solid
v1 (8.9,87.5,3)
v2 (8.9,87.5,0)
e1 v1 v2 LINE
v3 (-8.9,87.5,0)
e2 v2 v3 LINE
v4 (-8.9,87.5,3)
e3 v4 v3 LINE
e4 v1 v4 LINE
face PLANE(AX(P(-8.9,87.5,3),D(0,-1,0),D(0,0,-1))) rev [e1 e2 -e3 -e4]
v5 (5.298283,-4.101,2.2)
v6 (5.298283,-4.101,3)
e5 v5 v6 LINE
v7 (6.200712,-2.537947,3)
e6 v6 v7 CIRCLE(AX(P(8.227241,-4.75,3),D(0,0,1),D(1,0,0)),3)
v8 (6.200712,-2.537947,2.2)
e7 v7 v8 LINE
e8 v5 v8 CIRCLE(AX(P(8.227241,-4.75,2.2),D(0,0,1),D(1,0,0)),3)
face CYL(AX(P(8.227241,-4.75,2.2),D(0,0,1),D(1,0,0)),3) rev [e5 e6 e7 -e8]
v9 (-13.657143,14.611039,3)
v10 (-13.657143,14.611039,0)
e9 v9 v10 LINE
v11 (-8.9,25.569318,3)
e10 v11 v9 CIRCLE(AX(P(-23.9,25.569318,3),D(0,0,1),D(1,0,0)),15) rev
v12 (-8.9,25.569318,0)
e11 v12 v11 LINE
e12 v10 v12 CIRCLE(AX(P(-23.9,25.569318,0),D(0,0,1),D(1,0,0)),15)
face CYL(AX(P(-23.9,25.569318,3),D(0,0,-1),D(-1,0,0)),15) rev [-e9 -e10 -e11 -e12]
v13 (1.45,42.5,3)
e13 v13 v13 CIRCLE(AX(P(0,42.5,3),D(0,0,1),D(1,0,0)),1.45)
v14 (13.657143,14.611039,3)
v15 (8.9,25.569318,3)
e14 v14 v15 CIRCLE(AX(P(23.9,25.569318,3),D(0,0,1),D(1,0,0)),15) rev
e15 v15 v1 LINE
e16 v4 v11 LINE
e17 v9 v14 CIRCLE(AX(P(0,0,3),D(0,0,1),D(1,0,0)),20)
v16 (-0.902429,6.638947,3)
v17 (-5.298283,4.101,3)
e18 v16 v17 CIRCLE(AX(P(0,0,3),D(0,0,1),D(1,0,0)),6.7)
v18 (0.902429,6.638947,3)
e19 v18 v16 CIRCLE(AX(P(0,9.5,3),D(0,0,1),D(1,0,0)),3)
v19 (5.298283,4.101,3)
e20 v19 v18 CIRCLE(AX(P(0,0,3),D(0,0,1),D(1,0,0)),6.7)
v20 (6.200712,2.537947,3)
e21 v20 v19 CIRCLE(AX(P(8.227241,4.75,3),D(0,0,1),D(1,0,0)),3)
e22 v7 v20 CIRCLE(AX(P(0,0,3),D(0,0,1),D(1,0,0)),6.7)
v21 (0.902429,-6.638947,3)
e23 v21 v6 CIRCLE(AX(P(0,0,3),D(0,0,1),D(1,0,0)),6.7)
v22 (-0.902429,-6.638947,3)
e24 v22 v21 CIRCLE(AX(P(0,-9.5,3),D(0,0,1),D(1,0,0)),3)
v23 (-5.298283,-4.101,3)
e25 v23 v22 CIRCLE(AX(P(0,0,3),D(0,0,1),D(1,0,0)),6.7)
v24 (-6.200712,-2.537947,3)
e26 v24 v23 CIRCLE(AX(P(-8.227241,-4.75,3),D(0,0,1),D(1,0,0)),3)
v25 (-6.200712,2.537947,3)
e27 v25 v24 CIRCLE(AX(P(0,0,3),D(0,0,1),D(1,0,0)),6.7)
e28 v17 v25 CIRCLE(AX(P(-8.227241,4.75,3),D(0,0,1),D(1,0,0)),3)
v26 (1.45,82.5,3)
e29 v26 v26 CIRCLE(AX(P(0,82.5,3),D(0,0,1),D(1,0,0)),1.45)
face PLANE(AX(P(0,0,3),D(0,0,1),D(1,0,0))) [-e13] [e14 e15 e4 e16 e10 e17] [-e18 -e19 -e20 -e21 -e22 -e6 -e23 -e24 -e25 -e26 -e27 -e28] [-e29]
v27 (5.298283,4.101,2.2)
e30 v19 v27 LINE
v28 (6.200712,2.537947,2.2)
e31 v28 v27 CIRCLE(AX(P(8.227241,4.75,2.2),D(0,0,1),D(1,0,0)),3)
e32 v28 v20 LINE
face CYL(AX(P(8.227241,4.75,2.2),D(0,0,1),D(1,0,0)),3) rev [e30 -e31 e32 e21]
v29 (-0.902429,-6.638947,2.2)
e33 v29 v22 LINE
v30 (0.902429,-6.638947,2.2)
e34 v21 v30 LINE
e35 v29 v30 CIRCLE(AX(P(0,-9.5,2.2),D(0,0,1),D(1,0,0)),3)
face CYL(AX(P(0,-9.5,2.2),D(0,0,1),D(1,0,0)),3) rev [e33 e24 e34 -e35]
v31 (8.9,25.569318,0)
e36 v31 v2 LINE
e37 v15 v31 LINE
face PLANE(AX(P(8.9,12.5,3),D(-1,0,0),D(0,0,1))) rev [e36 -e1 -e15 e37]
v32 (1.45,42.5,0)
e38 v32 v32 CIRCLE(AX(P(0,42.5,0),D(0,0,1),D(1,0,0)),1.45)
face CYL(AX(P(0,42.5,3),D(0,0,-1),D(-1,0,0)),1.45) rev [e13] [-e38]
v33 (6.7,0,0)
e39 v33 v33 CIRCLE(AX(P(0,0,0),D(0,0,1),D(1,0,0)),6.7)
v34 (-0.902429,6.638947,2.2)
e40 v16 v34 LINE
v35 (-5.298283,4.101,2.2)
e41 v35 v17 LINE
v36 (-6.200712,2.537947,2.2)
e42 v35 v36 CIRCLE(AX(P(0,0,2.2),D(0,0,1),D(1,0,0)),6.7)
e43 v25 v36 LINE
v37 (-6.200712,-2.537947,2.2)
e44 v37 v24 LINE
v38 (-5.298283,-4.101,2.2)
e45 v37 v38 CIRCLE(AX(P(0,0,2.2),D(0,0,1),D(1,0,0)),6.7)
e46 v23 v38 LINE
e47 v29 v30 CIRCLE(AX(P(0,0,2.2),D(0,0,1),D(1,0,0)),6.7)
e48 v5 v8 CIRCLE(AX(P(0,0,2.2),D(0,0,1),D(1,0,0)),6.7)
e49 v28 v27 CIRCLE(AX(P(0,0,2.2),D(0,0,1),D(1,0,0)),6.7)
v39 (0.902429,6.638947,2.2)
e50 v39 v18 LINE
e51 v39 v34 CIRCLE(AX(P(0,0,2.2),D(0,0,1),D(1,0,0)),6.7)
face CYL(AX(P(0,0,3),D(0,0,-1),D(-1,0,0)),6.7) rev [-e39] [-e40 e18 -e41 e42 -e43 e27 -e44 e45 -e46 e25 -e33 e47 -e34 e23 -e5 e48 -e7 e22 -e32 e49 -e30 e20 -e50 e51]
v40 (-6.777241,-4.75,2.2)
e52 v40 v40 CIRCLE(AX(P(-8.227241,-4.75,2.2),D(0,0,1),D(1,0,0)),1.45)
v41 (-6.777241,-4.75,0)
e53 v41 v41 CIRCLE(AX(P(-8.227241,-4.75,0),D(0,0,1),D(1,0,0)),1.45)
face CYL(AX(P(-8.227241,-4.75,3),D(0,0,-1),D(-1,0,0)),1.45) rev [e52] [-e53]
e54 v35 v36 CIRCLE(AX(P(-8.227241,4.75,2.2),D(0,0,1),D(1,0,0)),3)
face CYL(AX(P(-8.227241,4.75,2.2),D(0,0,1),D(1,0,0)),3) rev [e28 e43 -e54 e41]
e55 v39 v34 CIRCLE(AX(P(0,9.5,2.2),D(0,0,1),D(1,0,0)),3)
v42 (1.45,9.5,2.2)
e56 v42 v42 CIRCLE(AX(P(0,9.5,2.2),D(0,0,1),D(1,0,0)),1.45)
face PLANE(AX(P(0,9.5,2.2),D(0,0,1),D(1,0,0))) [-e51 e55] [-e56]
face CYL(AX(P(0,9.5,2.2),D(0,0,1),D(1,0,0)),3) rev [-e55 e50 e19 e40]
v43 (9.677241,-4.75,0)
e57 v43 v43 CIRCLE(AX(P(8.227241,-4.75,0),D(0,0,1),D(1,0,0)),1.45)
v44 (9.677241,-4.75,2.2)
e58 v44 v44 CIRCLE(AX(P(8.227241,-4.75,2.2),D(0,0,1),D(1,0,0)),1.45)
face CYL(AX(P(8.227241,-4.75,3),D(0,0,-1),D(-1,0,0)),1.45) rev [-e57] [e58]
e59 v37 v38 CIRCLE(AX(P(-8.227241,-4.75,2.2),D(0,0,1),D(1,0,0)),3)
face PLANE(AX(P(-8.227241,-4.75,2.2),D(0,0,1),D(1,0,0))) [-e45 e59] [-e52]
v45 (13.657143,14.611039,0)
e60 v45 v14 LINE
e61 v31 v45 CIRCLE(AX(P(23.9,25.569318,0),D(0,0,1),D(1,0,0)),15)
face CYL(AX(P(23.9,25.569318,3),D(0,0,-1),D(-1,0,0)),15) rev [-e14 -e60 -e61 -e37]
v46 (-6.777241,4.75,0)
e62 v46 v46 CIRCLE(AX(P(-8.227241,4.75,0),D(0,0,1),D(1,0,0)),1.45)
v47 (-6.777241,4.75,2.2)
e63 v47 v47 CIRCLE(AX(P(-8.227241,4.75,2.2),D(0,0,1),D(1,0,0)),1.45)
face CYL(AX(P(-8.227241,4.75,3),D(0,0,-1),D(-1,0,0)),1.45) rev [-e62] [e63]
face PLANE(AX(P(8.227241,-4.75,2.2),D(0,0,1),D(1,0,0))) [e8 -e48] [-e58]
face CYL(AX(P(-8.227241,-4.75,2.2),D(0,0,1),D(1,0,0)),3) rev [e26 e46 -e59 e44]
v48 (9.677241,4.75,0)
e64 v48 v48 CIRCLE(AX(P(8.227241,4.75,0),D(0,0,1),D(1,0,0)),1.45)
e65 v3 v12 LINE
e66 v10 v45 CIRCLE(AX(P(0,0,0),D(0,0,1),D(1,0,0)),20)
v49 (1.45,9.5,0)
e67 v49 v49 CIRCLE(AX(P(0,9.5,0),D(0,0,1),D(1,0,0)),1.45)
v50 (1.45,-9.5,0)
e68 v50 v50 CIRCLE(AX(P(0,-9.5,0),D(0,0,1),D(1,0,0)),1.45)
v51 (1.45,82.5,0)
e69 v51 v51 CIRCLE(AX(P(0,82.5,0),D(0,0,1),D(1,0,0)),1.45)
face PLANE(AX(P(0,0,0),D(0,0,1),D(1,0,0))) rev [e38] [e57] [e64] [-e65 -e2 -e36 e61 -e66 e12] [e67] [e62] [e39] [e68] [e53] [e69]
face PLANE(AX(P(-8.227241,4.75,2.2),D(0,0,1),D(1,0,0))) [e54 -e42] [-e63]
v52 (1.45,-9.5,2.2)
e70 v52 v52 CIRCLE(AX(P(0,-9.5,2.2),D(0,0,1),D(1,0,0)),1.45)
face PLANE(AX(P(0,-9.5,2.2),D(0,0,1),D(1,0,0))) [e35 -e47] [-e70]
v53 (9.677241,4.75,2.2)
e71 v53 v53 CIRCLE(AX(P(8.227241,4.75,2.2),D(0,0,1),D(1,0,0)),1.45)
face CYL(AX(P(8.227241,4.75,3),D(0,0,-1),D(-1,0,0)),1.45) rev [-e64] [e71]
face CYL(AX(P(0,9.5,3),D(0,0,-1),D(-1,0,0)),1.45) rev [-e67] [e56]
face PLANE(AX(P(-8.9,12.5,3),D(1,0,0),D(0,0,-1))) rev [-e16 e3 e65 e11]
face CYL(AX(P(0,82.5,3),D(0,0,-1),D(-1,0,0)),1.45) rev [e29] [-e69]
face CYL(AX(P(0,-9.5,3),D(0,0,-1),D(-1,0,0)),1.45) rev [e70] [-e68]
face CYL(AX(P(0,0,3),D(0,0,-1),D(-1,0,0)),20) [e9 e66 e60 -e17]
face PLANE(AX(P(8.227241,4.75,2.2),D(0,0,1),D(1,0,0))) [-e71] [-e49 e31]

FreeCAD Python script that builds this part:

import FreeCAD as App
import Part
import Sketcher
from FreeCAD import Vector


def edges_at(feature, points):
    """Names of the edges that pass closest to the given points."""
    edges = feature.Shape.Edges
    near = lambda p: min(range(len(edges)), key=lambda i: edges[i].distToShape(Part.Vertex(*p))[0])
    return sorted({f"Edge{near(p) + 1}" for p in points})

doc = App.newDocument("Part")
params = doc.addObject("Spreadsheet::Sheet", "Params")
for row, (alias, value) in enumerate([
    ("sketch1_diameter", "40 mm"),
    ("sketch1_diameter2", "2.9 mm"),
    ("sketch1_diameter3", "13.4 mm"),
    ("pad1_length", "3 mm"),
    ("sketch2_diameter", "2.9 mm"),
    ("sketch2_height", "75 mm"),
    ("sketch2_width", "17.8 mm"),
    ("pad2_length", "3 mm"),
    ("fillet_radius", "15 mm"),
    ("sketch3_diameter", "6 mm"),
    ("pocket1_length", "0.8 mm"),
], start=1):
    params.set(f"A{row}", alias)
    params.set(f"B{row}", "=" + value)
    params.setAlias(f"B{row}", alias)

body = doc.addObject("PartDesign::Body", "Body")

sketch1 = body.newObject("Sketcher::SketchObject", "Sketch")
sketch1.AttachmentSupport = (doc.getObject("XY_Plane"), [""])
sketch1.MapMode = "FlatFace"
sketch1.addGeometry([
    Part.Circle(Vector(0, 0, 0), Vector(0, 0, 1), 20),
    Part.Circle(Vector(-8.2, -4.8, 0), Vector(0, 0, 1), 1.4),
    Part.Circle(Vector(0, -9.5, 0), Vector(0, 0, 1), 1.4),
    Part.Circle(Vector(8.2, -4.8, 0), Vector(0, 0, 1), 1.4),
    Part.Circle(Vector(-8.2, 4.8, 0), Vector(0, 0, 1), 1.4),
    Part.Circle(Vector(0, 0, 0), Vector(0, 0, 1), 6.7),
    Part.Circle(Vector(8.2, 4.8, 0), Vector(0, 0, 1), 1.4),
    Part.Circle(Vector(0, 9.5, 0), Vector(0, 0, 1), 1.4),
], False)
sketch1.addConstraint([
    Sketcher.Constraint("Coincident", 0, 3, -1, 1),
    Sketcher.Constraint("Coincident", 5, 3, -1, 1),
    Sketcher.Constraint("Equal", 1, 2),
    Sketcher.Constraint("Equal", 2, 3),
    Sketcher.Constraint("Equal", 3, 4),
    Sketcher.Constraint("Equal", 4, 6),
    Sketcher.Constraint("Equal", 6, 7),
    Sketcher.Constraint("Symmetric", 3, 3, 4, 3, -1, 1),
    Sketcher.Constraint("Symmetric", 1, 3, 6, 3, -1, 1),
    Sketcher.Constraint("Symmetric", 2, 3, 7, 3, -1, 1),
    Sketcher.Constraint("Symmetric", 1, 3, 3, 3, -2),
    Sketcher.Constraint("PointOnObject", 2, 3, -2),
    Sketcher.Constraint("Diameter", 0, 40.0),
    Sketcher.Constraint("Diameter", 1, 2.9),
    Sketcher.Constraint("Diameter", 5, 13.4),
    Sketcher.Constraint("DistanceY", 2, 3, -1, 1, 9.5),
    Sketcher.Constraint("DistanceY", 1, 3, 4, 3, 9.5),
    Sketcher.Constraint("DistanceX", 1, 3, -1, 1, 8.227241),
])
sketch1.setExpression("Constraints[12]", "Params.sketch1_diameter")
sketch1.setExpression("Constraints[13]", "Params.sketch1_diameter2")
sketch1.setExpression("Constraints[14]", "Params.sketch1_diameter3")
pad1 = body.newObject("PartDesign::Pad", "Pad")
pad1.Profile = sketch1
pad1.setExpression("Length", "Params.pad1_length")

sketch2 = body.newObject("Sketcher::SketchObject", "Sketch001")
sketch2.AttachmentSupport = (doc.getObject("XY_Plane"), [""])
sketch2.MapMode = "FlatFace"
sketch2.addGeometry([
    Part.LineSegment(Vector(-8.9, 87.5, 0), Vector(-8.9, 12.5, 0)),
    Part.LineSegment(Vector(-8.9, 12.5, 0), Vector(8.9, 12.5, 0)),
    Part.LineSegment(Vector(8.9, 12.5, 0), Vector(8.9, 87.5, 0)),
    Part.LineSegment(Vector(8.9, 87.5, 0), Vector(-8.9, 87.5, 0)),
    Part.Circle(Vector(0, 42.5, 0), Vector(0, 0, 1), 1.4),
    Part.Circle(Vector(0, 82.5, 0), Vector(0, 0, 1), 1.4),
], False)
sketch2.addConstraint([
    Sketcher.Constraint("Coincident", 0, 2, 1, 1),
    Sketcher.Constraint("Coincident", 1, 2, 2, 1),
    Sketcher.Constraint("Coincident", 2, 2, 3, 1),
    Sketcher.Constraint("Coincident", 3, 2, 0, 1),
    Sketcher.Constraint("Vertical", 0),
    Sketcher.Constraint("Horizontal", 1),
    Sketcher.Constraint("Vertical", 2),
    Sketcher.Constraint("Horizontal", 3),
    Sketcher.Constraint("Equal", 4, 5),
    Sketcher.Constraint("PointOnObject", 4, 3, -2),
    Sketcher.Constraint("PointOnObject", 5, 3, -2),
    Sketcher.Constraint("Diameter", 4, 2.9),
    Sketcher.Constraint("DistanceY", 0, 2, 0, 1, 75.0),
    Sketcher.Constraint("DistanceX", 1, 1, 1, 2, 17.8),
    Sketcher.Constraint("DistanceY", 4, 3, 5, 3, 40.0),
    Sketcher.Constraint("DistanceY", 0, 2, 4, 3, 30.0),
    Sketcher.Constraint("DistanceY", -1, 1, 4, 3, 42.5),
    Sketcher.Constraint("DistanceX", 0, 2, -1, 1, 8.9),
])
sketch2.setExpression("Constraints[11]", "Params.sketch2_diameter")
sketch2.setExpression("Constraints[12]", "Params.sketch2_height")
sketch2.setExpression("Constraints[13]", "Params.sketch2_width")
pad2 = body.newObject("PartDesign::Pad", "Pad001")
pad2.Profile = sketch2
pad2.setExpression("Length", "Params.pad2_length")
doc.recompute()

fillet = body.newObject("PartDesign::Fillet", "Fillet")
fillet.Base = (pad2, edges_at(pad2, [(-8.9, 17.911, 1.5), (8.9, 17.911, 1.5)]))
fillet.setExpression("Radius", "Params.fillet_radius")

sketch3 = body.newObject("Sketcher::SketchObject", "Sketch002")
sketch3.AttachmentSupport = (doc.getObject("XY_Plane"), [""])
sketch3.MapMode = "FlatFace"
sketch3.AttachmentOffset = App.Placement(Vector(0, 0, 3), App.Rotation())
sketch3.addGeometry([
    Part.Circle(Vector(0, 9.5, 0), Vector(0, 0, 1), 3),
    Part.Circle(Vector(8.2, 4.8, 0), Vector(0, 0, 1), 3),
    Part.Circle(Vector(8.2, -4.8, 0), Vector(0, 0, 1), 3),
    Part.Circle(Vector(0, -9.5, 0), Vector(0, 0, 1), 3),
    Part.Circle(Vector(-8.2, -4.8, 0), Vector(0, 0, 1), 3),
    Part.Circle(Vector(-8.2, 4.8, 0), Vector(0, 0, 1), 3),
], False)
sketch3.addConstraint([
    Sketcher.Constraint("Equal", 0, 1),
    Sketcher.Constraint("Equal", 1, 2),
    Sketcher.Constraint("Equal", 2, 3),
    Sketcher.Constraint("Equal", 3, 4),
    Sketcher.Constraint("Equal", 4, 5),
    Sketcher.Constraint("Symmetric", 0, 3, 3, 3, -1, 1),
    Sketcher.Constraint("Symmetric", 1, 3, 4, 3, -1, 1),
    Sketcher.Constraint("Symmetric", 2, 3, 5, 3, -1, 1),
    Sketcher.Constraint("Symmetric", 2, 3, 4, 3, -2),
    Sketcher.Constraint("PointOnObject", 0, 3, -2),
    Sketcher.Constraint("Diameter", 0, 6.0),
    Sketcher.Constraint("DistanceY", 3, 3, 0, 3, 19.0),
    Sketcher.Constraint("DistanceY", 2, 3, 1, 3, 9.5),
    Sketcher.Constraint("DistanceX", -1, 1, 1, 3, 8.227241),
])
sketch3.setExpression("Constraints[10]", "Params.sketch3_diameter")
pocket1 = body.newObject("PartDesign::Pocket", "Pocket")
pocket1.Profile = sketch3
pocket1.setExpression("Length", "Params.pocket1_length")

doc.recompute()
